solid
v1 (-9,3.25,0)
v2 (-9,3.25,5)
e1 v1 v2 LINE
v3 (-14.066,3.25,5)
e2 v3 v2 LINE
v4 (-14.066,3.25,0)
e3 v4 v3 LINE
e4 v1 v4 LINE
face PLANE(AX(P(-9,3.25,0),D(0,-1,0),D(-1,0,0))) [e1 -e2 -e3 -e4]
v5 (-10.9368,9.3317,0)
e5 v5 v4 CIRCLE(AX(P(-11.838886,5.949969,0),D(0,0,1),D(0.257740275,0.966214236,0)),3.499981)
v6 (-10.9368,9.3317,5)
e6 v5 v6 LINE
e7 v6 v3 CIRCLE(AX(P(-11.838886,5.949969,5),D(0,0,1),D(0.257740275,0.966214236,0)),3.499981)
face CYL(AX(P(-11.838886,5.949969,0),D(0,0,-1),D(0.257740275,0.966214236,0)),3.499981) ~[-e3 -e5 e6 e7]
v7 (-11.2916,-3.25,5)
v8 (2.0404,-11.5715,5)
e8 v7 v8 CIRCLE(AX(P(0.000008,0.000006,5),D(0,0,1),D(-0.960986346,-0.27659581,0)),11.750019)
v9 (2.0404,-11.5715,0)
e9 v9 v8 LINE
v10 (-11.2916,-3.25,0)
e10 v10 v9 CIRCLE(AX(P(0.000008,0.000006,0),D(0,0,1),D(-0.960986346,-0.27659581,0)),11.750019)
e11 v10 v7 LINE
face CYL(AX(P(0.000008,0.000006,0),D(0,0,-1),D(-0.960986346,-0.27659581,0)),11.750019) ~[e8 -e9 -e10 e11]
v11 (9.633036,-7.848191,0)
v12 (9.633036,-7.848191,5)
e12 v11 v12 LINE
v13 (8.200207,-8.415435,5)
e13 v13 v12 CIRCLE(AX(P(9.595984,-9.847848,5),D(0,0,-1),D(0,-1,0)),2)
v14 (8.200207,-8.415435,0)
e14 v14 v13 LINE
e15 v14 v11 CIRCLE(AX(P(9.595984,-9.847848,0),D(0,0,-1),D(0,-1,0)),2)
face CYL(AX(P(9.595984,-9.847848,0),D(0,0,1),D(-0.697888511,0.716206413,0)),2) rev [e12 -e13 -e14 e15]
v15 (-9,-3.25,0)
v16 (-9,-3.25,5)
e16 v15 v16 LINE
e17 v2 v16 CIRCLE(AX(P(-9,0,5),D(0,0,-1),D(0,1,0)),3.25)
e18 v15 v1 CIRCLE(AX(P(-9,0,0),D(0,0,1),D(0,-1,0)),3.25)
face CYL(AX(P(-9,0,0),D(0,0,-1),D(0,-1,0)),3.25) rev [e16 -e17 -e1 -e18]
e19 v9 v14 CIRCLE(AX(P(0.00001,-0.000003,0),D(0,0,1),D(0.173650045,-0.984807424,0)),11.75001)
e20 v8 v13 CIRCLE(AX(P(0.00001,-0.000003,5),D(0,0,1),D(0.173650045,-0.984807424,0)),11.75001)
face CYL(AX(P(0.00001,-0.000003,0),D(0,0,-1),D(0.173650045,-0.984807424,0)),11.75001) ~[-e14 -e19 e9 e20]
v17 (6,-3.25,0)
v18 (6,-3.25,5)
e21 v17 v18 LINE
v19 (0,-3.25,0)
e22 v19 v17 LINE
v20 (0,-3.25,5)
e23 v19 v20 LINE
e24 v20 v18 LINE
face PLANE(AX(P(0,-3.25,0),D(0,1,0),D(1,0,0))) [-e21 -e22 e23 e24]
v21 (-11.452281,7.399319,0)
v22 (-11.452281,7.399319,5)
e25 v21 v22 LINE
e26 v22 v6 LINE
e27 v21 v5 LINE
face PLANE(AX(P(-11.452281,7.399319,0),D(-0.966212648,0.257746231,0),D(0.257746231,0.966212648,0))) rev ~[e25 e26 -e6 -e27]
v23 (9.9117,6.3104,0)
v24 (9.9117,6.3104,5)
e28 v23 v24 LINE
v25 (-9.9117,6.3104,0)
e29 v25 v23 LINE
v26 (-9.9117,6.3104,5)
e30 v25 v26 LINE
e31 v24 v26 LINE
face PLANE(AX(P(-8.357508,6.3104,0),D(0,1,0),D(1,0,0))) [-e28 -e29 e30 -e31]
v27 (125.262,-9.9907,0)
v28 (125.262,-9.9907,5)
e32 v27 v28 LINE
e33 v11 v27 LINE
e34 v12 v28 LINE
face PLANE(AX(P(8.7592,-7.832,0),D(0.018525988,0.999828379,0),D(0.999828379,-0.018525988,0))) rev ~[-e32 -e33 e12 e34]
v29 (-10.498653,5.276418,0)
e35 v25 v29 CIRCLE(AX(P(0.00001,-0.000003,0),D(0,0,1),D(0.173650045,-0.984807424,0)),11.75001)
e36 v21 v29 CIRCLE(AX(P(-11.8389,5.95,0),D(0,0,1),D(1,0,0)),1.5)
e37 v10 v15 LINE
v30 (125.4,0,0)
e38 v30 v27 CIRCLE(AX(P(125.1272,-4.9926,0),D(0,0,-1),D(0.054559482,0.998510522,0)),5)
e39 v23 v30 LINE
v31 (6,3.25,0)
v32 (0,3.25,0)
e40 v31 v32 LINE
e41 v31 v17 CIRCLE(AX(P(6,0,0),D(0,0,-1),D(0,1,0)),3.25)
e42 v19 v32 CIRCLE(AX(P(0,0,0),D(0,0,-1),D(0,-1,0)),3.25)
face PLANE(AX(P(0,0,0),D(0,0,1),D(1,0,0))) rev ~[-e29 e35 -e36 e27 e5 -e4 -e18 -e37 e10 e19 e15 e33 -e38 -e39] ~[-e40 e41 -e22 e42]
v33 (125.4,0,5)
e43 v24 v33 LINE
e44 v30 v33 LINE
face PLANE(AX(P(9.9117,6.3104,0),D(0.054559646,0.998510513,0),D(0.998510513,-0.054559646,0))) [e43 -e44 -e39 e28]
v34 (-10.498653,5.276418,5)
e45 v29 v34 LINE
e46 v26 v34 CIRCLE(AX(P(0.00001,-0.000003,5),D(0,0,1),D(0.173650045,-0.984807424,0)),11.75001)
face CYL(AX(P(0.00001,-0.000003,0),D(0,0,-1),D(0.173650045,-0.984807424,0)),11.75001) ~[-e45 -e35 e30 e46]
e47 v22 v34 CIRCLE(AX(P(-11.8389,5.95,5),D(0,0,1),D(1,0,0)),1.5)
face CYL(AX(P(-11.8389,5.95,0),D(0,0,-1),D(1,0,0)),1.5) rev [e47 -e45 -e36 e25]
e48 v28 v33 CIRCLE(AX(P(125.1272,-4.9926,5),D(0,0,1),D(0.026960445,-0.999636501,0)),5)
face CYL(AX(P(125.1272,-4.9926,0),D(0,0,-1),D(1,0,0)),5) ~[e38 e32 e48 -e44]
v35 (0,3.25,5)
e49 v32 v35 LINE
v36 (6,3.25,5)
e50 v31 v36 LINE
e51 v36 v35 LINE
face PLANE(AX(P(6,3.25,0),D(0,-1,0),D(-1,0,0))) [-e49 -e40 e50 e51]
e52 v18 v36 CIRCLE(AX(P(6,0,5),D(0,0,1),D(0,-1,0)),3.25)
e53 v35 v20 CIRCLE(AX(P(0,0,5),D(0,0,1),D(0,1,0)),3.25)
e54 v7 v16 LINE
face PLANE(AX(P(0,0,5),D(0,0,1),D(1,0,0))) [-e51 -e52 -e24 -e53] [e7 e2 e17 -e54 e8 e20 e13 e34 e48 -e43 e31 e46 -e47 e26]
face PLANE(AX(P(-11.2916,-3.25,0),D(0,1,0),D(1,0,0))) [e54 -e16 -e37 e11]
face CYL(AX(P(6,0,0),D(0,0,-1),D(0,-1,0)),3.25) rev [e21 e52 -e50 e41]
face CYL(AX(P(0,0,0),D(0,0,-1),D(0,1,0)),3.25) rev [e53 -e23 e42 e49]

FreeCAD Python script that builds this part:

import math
import FreeCAD as App
import Part
import Sketcher

V = App.Vector


def edges_at(feature, points):
    """Names of the edges that pass closest to the given points."""
    edges = feature.Shape.Edges
    near = lambda p: min(range(len(edges)), key=lambda i: edges[i].distToShape(Part.Vertex(*p))[0])
    return sorted({f"Edge{near(p) + 1}" for p in points})

doc = App.newDocument("Part")
params = doc.addObject("Spreadsheet::Sheet", "Params")
for row, (alias, value) in enumerate([
    ("sketch1_radius", "5 mm"),
    ("sketch1_radius2", "1.5 mm"),
    ("sketch1_width", "6 mm"),
    ("sketch1_width2", "6 mm"),
    ("sketch1_radius3", "3.25 mm"),
    ("pad1_length", "5 mm"),
    ("fillet_radius", "2 mm"),
], start=1):
    params.set(f"A{row}", alias)
    params.set(f"B{row}", "=" + value)
    params.setAlias(f"B{row}", alias)

body = doc.addObject("PartDesign::Body", "Body")

# Sketch on XY plane
sketch1 = body.newObject("Sketcher::SketchObject", "Sketch")
sketch1.AttachmentSupport = (doc.getObject("XY_Plane"), [""])
sketch1.MapMode = "FlatFace"
sketch1.addGeometry([
    Part.ArcOfCircle(Part.Circle(V(0, 0, 0), V(0, 0, 1), 11.75001), math.radians(-79.999845), math.radians(-41.80135)),  # 0
    Part.LineSegment(V(8.7592, -7.832, 0), V(125.262, -9.9907, 0)),  # 1
    Part.ArcOfCircle(Part.Circle(V(125.1272, -4.9926, 0), V(0, 0, 1), 5), math.radians(-88.455093), math.radians(86.872419)),  # 2
    Part.LineSegment(V(125.4, 0, 0), V(9.9117, 6.3104, 0)),  # 3
    Part.LineSegment(V(9.9117, 6.3104, 0), V(-9.9117, 6.3104, 0)),  # 4
    Part.ArcOfCircle(Part.Circle(V(0, 0, 0), V(0, 0, 1), 11.75001), math.radians(147.516653), math.radians(153.316789)),  # 5
    Part.ArcOfCircle(Part.Circle(V(-11.8389, 5.95, 0), V(0, 0, 1), 1.5), math.radians(75.063627), math.radians(333.3168)),  # 6
    Part.LineSegment(V(-11.452281, 7.399319, 0), V(-10.9368, 9.3317, 0)),  # 7
    Part.ArcOfCircle(Part.Circle(V(-11.8389, 5.95, 0), V(0, 0, 1), 3.499996), math.radians(75.063627), math.radians(230.48242)),  # 8
    Part.LineSegment(V(-14.066, 3.25, 0), V(-9, 3.25, 0)),  # 9
    Part.ArcOfCircle(Part.Circle(V(-9, 0, 0), V(0, 0, 1), 3.25), math.radians(-90), math.radians(90)),  # 10
    Part.LineSegment(V(-9, -3.25, 0), V(-11.2916, -3.25, 0)),  # 11
    Part.ArcOfCircle(Part.Circle(V(0, 0, 0), V(0, 0, 1), 11.750015), math.radians(-163.942881), math.radians(-79.999845)),  # 12
    Part.LineSegment(V(6, -3.25, 0), V(0, -3.25, 0)),  # 13
    Part.ArcOfCircle(Part.Circle(V(0, 0, 0), V(0, 0, 1), 3.25), math.radians(90), math.radians(270)),  # 14
    Part.LineSegment(V(0, 3.25, 0), V(6, 3.25, 0)),  # 15
    Part.ArcOfCircle(Part.Circle(V(6, 0, 0), V(0, 0, 1), 3.25), math.radians(-90), math.radians(90)),  # 16
], False)
sketch1.addConstraint([
    Sketcher.Constraint("Coincident", 0, 2, 1, 1),
    Sketcher.Constraint("Coincident", 1, 2, 2, 1),
    Sketcher.Constraint("Coincident", 2, 2, 3, 1),
    Sketcher.Constraint("Coincident", 3, 2, 4, 1),
    Sketcher.Constraint("Coincident", 4, 2, 5, 1),
    Sketcher.Constraint("Coincident", 5, 2, 6, 2),
    Sketcher.Constraint("Coincident", 6, 1, 7, 1),
    Sketcher.Constraint("Coincident", 7, 2, 8, 1),
    Sketcher.Constraint("Coincident", 8, 2, 9, 1),
    Sketcher.Constraint("Coincident", 9, 2, 10, 2),
    Sketcher.Constraint("Coincident", 10, 1, 11, 1),
    Sketcher.Constraint("Coincident", 11, 2, 12, 1),
    Sketcher.Constraint("Coincident", 12, 2, 0, 1),
    Sketcher.Constraint("Coincident", 13, 2, 14, 2),
    Sketcher.Constraint("Coincident", 14, 1, 15, 1),
    Sketcher.Constraint("Coincident", 15, 2, 16, 2),
    Sketcher.Constraint("Coincident", 16, 1, 13, 1),
    Sketcher.Constraint("Horizontal", 4),
    Sketcher.Constraint("Horizontal", 9),
    Sketcher.Constraint("Horizontal", 11),
    Sketcher.Constraint("Horizontal", 13),
    Sketcher.Constraint("Horizontal", 15),
    Sketcher.Constraint("Coincident", 0, 3, -1, 1),
    Sketcher.Constraint("Coincident", 5, 3, -1, 1),
    Sketcher.Constraint("Coincident", 12, 3, -1, 1),
    Sketcher.Constraint("Coincident", 14, 3, -1, 1),
    Sketcher.Constraint("Coincident", 8, 3, 6, 3),
    Sketcher.Constraint("PointOnObject", 10, 3, -1),
    Sketcher.Constraint("PointOnObject", 2, 2, -1),
    Sketcher.Constraint("PointOnObject", 13, 2, -2),
    Sketcher.Constraint("PointOnObject", 14, 1, -2),
    Sketcher.Constraint("Radius", 2, 5.0),
    Sketcher.Constraint("Radius", 6, 1.5),
    Sketcher.Constraint("DistanceX", 13, 2, 13, 1, 6.0),
    Sketcher.Constraint("DistanceX", 15, 1, 15, 2, 6.0),
    Sketcher.Constraint("Radius", 10, 3.25),
    Sketcher.Constraint("Radius", 14, 3.25),
    Sketcher.Constraint("Distance", 7, 2.0),
    Sketcher.Constraint("DistanceX", -1, 1, 16, 3, 6.0),
    Sketcher.Constraint("DistanceX", 10, 3, 16, 3, 15.0),
    Sketcher.Constraint("DistanceX", -1, 1, 2, 2, 125.4),
    Sketcher.Constraint("Radius", 0, 11.75),
    Sketcher.Constraint("Radius", 5, 11.75),
    Sketcher.Constraint("DistanceX", 9, 2, -1, 1, 9.0),
    Sketcher.Constraint("DistanceX", 10, 1, -1, 1, 9.0),
    Sketcher.Constraint("DistanceY", 8, 2, 6, 3, 2.7),
    Sketcher.Constraint("DistanceX", 4, 2, 4, 1, 19.8234),
    Sketcher.Constraint("DistanceY", 0, 2, -1, 1, 7.832),
    Sketcher.Constraint("DistanceX", -1, 1, 1, 2, 125.262),
    Sketcher.Constraint("DistanceX", 6, 3, 2, 3, 136.966),
    Sketcher.Constraint("DistanceX", 5, 2, 4, 2, 0.587),
    Sketcher.Constraint("DistanceY", 5, 2, 4, 2, 1.034),
    Sketcher.Constraint("DistanceY", 4, 2, 6, 1, 1.089),
    Sketcher.Constraint("DistanceX", 7, 2, 4, 2, 1.025),
    Sketcher.Constraint("DistanceX", -1, 1, 12, 2, 2.0404),
])
sketch1.setExpression("Constraints[31]", "Params.sketch1_radius")
sketch1.setExpression("Constraints[32]", "Params.sketch1_radius2")
sketch1.setExpression("Constraints[33]", "Params.sketch1_width")
sketch1.setExpression("Constraints[34]", "Params.sketch1_width2")
sketch1.setExpression("Constraints[35]", "Params.sketch1_radius3")
pad1 = body.newObject("PartDesign::Pad", "Pad")
pad1.Profile = sketch1
pad1.setExpression("Length", "Params.pad1_length")
doc.recompute()

fillet = body.newObject("PartDesign::Fillet", "Fillet")
fillet.Base = (pad1, edges_at(pad1, [(8.759, -7.832, 2.5)]))
fillet.setExpression("Radius", "Params.fillet_radius")

doc.recompute()
